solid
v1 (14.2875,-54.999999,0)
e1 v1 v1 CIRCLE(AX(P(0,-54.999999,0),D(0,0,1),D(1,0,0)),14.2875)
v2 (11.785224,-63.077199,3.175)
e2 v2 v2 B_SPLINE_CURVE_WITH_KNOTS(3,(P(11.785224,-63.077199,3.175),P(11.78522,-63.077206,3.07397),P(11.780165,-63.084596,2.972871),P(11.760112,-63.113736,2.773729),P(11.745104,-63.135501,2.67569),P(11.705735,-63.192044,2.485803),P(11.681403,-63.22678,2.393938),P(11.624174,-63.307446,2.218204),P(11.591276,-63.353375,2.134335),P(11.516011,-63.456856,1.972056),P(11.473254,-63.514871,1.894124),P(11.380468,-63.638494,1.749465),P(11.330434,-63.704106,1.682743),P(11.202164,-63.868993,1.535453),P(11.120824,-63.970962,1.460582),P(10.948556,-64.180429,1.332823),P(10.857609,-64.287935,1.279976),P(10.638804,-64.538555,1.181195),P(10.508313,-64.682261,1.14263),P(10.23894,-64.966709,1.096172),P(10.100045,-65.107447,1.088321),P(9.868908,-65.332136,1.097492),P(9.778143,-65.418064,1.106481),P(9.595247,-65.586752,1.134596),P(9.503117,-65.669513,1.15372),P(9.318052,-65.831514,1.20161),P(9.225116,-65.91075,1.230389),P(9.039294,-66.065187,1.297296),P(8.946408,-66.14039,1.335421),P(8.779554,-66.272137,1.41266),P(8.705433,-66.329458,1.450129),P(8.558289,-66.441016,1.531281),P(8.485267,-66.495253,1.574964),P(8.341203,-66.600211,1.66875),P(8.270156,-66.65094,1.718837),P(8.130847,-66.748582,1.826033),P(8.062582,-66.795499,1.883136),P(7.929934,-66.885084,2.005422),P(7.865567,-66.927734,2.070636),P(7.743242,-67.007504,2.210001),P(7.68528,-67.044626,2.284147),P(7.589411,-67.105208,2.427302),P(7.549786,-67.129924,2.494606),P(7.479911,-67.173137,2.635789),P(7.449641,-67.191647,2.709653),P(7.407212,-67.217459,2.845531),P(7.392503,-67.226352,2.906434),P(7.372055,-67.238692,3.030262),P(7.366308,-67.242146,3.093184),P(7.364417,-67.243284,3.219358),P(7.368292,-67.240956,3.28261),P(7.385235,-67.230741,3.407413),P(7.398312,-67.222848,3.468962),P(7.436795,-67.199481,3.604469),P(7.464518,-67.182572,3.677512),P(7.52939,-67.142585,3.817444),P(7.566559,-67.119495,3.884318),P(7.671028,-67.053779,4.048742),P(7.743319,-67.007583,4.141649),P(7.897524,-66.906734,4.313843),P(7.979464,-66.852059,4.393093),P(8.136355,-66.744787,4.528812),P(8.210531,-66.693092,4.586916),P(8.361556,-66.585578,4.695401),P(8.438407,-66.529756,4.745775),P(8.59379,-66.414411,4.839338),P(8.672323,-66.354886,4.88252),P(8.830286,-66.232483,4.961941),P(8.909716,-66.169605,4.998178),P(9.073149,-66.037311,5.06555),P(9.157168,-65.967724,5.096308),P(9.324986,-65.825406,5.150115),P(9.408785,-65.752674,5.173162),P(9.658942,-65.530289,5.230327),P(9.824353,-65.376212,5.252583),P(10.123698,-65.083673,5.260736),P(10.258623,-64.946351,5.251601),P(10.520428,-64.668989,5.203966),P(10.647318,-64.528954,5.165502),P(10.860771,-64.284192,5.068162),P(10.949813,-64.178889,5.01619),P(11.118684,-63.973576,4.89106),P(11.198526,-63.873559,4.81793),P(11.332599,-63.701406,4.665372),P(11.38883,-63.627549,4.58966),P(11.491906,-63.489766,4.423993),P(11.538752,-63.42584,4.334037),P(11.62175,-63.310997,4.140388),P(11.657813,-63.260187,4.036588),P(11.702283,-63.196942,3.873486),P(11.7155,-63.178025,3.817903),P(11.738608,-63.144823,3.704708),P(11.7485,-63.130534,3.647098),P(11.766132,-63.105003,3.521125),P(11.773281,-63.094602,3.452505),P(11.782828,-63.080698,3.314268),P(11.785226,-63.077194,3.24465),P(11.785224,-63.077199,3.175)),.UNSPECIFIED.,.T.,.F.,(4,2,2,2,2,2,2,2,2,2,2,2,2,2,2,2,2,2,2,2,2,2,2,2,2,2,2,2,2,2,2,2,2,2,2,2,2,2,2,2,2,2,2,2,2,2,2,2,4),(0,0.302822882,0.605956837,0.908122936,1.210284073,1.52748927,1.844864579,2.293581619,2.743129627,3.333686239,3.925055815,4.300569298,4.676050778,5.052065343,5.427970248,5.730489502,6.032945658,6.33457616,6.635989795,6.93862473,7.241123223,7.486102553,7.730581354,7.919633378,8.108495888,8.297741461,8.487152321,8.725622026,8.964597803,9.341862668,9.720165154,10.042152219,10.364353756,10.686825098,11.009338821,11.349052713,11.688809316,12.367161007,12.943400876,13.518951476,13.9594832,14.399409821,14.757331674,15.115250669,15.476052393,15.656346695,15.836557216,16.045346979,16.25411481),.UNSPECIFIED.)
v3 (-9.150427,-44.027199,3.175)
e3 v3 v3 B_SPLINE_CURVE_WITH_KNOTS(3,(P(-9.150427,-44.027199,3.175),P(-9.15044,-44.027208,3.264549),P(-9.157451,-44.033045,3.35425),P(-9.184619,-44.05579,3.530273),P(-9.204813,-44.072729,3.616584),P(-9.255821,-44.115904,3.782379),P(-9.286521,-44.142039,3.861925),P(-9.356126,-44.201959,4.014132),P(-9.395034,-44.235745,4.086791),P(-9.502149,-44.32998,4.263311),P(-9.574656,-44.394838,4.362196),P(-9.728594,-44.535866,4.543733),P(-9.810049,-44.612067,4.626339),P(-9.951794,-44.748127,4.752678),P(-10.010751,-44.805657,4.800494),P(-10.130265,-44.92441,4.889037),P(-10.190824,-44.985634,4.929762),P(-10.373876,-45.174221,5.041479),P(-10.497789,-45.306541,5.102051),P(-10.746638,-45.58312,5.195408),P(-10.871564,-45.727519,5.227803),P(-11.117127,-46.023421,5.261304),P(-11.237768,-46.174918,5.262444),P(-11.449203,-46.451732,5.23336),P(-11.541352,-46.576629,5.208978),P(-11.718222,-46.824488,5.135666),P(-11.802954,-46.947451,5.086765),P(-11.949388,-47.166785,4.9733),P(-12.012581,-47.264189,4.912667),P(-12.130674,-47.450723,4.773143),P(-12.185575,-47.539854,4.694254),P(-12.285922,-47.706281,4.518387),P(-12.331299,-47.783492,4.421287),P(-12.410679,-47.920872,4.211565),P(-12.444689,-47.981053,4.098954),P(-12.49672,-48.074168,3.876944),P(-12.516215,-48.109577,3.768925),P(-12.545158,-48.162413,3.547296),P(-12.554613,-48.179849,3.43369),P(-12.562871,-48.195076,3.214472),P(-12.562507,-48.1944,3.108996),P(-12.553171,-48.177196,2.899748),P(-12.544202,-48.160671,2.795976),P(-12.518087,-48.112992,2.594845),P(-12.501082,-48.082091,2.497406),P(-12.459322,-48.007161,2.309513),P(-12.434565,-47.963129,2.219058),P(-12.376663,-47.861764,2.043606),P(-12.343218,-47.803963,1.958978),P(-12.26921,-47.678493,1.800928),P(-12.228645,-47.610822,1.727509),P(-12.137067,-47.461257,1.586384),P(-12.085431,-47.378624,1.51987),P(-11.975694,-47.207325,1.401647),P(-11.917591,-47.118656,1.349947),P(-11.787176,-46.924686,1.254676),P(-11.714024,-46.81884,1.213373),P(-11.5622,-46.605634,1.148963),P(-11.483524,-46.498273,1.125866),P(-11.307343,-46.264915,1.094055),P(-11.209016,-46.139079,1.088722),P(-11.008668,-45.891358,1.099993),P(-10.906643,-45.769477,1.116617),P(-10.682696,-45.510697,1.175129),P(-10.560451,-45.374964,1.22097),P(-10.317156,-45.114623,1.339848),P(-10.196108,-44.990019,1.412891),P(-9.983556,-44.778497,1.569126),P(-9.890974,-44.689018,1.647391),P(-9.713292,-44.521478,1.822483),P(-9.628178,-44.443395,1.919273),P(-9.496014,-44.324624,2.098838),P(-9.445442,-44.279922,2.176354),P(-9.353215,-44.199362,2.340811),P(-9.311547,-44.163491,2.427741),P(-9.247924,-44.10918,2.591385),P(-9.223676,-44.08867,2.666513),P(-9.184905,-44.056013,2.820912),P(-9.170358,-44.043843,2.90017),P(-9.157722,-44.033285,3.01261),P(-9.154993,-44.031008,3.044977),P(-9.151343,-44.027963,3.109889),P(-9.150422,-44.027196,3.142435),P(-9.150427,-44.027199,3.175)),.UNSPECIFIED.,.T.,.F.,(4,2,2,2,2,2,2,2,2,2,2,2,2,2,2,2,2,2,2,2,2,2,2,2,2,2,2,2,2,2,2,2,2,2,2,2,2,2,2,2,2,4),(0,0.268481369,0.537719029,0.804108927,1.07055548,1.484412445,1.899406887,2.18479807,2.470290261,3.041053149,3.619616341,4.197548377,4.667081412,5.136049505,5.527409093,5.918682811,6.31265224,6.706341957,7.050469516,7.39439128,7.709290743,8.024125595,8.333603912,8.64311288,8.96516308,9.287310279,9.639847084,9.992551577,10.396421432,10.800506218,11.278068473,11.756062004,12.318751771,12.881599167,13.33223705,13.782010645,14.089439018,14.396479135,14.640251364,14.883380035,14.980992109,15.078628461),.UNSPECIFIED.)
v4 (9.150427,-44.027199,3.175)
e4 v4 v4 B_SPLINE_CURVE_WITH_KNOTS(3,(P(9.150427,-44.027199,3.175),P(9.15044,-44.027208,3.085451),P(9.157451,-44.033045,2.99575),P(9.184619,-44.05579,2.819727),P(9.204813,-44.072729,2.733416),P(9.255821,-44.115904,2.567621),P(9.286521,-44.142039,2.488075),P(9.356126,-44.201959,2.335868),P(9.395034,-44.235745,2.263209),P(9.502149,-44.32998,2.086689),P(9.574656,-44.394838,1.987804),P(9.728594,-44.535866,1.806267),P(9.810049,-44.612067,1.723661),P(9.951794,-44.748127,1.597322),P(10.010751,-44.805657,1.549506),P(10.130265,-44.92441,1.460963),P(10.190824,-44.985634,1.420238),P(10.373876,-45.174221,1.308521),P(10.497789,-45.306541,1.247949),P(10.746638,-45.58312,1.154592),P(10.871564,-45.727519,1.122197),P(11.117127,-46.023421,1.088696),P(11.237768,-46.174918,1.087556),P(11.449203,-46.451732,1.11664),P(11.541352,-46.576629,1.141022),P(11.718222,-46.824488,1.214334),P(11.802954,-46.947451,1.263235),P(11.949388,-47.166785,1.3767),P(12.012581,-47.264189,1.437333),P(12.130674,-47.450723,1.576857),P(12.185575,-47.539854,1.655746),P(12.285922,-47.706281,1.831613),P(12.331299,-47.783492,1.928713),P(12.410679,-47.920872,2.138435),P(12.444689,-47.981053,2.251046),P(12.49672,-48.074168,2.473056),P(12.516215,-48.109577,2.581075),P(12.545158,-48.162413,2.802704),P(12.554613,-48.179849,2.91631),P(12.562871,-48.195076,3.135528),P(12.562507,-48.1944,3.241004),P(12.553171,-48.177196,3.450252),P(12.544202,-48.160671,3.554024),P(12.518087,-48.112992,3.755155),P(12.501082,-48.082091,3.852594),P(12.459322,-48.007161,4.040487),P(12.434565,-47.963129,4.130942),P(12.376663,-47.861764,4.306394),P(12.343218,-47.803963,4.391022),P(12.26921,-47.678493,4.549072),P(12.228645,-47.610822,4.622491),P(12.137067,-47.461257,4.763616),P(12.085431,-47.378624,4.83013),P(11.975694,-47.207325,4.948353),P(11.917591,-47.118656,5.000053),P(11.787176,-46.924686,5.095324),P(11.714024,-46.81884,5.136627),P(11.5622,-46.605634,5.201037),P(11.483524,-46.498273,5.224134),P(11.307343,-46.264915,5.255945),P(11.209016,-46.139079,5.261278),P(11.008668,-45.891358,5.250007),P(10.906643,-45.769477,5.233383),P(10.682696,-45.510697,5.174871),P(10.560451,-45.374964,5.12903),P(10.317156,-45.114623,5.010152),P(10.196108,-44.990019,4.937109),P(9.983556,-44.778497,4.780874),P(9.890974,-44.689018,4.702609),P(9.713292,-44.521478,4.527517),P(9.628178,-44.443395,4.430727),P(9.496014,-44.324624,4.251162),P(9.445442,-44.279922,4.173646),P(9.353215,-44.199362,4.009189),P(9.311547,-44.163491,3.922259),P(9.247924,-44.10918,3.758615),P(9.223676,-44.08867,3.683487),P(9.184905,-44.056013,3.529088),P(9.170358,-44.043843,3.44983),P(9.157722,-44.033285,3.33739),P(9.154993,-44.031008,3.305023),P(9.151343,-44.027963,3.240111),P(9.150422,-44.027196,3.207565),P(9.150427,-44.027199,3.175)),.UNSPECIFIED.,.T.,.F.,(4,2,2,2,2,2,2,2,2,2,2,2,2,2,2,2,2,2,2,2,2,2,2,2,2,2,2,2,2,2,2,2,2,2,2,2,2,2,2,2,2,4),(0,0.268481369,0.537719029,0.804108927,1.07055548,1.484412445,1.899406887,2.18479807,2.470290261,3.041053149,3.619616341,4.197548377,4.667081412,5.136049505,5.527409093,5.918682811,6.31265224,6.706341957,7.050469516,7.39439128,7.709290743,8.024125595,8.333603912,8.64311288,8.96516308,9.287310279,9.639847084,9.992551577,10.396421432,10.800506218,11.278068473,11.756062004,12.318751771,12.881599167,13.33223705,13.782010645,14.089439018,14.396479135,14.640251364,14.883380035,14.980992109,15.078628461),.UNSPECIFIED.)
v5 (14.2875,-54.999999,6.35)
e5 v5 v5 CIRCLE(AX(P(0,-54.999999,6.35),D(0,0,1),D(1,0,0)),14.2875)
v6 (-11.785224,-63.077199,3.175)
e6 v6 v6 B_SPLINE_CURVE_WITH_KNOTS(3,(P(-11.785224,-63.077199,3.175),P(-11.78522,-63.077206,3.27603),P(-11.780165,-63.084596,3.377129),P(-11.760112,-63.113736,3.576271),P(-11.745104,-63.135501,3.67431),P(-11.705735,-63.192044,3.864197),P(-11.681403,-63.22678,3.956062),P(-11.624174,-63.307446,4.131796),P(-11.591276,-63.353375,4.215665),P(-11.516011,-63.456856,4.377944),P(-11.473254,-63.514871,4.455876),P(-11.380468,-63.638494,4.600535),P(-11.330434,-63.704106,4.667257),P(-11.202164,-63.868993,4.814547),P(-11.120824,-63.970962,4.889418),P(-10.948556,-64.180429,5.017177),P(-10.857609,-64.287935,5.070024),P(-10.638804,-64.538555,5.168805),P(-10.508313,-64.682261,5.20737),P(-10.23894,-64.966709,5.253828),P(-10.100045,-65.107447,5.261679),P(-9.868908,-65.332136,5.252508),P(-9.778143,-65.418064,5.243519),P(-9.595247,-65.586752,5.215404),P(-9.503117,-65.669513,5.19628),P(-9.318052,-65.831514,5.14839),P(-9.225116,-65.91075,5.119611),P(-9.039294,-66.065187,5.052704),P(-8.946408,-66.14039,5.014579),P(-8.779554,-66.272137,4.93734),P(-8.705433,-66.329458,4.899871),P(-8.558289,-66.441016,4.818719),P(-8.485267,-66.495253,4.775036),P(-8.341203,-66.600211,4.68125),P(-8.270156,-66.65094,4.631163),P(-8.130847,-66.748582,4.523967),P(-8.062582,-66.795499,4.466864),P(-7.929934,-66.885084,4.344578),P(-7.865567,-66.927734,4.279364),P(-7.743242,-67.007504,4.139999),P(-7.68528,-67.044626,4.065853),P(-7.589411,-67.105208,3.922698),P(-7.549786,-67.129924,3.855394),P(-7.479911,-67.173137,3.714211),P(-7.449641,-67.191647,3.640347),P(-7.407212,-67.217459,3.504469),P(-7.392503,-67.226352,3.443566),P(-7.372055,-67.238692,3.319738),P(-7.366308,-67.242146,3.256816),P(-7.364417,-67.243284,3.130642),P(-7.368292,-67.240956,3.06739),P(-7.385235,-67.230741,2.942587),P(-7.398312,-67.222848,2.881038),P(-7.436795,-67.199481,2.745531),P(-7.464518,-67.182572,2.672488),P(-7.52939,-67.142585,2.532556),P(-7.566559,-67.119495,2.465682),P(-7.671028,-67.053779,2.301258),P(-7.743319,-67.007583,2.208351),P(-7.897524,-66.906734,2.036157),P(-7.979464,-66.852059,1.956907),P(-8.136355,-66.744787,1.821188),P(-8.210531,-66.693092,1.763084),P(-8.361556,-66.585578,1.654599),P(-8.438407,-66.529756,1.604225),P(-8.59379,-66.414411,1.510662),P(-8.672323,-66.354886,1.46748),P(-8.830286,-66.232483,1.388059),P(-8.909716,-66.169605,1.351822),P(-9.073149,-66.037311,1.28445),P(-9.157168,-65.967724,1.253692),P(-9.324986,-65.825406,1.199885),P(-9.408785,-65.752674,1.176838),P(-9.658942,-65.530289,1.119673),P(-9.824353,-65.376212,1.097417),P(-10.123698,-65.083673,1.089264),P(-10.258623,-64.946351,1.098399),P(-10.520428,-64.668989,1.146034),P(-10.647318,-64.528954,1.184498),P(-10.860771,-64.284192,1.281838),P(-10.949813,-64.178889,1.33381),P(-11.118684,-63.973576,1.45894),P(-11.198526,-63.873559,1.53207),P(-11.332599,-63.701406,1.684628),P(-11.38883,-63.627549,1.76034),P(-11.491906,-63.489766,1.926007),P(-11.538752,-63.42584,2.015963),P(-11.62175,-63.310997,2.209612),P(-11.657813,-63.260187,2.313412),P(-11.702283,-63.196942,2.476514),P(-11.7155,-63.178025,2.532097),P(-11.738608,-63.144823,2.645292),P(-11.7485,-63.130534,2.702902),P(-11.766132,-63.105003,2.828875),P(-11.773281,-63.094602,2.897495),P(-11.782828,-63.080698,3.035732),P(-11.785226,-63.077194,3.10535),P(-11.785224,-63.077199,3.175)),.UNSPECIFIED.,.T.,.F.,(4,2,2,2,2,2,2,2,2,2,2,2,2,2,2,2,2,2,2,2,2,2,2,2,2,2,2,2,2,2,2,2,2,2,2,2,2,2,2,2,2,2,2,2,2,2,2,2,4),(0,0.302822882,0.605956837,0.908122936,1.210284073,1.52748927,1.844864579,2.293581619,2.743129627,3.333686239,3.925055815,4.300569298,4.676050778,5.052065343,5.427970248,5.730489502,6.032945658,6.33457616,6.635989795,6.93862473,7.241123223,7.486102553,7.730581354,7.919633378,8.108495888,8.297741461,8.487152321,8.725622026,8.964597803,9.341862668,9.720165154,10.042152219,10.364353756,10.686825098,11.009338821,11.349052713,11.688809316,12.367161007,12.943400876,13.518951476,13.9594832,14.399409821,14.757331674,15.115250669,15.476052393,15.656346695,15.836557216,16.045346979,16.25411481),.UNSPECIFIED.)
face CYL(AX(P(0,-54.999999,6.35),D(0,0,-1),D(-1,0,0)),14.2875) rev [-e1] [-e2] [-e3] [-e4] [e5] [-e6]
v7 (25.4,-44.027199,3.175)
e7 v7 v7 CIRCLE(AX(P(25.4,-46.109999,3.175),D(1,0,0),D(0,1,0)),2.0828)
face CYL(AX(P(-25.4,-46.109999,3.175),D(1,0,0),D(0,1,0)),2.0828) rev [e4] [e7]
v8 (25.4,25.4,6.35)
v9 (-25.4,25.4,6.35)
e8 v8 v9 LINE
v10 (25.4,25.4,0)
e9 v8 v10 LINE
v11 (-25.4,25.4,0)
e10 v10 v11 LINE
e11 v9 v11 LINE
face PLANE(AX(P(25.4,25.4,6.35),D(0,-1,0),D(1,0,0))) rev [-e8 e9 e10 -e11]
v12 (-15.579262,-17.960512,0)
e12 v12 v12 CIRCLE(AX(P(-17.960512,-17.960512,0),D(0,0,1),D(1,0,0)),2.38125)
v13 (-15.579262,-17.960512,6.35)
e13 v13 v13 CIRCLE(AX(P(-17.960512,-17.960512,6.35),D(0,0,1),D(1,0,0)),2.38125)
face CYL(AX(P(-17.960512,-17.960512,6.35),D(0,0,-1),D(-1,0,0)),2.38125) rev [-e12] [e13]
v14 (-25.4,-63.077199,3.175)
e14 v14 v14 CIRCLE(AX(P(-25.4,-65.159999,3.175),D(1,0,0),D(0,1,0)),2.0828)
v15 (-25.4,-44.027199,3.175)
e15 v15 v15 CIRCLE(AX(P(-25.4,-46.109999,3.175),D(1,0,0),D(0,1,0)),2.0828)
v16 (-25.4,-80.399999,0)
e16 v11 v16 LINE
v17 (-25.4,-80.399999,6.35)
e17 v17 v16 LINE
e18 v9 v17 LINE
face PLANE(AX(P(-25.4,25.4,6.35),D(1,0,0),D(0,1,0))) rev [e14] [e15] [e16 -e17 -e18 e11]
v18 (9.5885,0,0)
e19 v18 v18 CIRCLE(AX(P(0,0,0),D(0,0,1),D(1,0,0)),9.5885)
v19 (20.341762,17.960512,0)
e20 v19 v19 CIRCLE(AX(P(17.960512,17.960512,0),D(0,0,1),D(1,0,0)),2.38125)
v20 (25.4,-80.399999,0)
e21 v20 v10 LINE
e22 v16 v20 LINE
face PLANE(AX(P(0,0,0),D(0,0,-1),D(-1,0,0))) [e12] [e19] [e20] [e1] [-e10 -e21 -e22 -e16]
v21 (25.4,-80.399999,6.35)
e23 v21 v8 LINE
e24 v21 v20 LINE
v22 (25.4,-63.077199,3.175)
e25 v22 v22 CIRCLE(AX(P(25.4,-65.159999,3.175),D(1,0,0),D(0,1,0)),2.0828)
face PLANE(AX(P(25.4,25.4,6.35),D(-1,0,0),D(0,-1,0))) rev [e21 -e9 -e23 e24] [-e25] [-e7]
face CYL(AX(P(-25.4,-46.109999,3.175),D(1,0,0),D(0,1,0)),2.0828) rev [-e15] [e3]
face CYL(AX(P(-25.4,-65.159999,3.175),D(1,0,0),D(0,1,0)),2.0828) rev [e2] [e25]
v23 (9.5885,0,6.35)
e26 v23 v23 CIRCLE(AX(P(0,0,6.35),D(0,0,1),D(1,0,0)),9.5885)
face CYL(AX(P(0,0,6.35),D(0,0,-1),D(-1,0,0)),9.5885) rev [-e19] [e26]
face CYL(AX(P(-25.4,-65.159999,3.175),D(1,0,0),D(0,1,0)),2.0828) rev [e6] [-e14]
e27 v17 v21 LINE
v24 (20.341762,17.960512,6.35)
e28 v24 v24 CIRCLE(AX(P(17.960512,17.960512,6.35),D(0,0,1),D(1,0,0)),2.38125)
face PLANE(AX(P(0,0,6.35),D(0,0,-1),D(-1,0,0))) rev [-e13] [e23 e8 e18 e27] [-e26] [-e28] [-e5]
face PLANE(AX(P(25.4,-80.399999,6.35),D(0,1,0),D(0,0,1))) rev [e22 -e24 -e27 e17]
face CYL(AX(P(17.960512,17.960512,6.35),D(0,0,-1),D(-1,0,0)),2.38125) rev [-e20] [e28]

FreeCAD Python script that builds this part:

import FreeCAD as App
import Part
import Sketcher

V = App.Vector
Q = App.Units.Quantity

doc = App.newDocument("Part")
body = doc.addObject("PartDesign::Body", "Body")

# Sketch on XY plane
sketch1 = body.newObject("Sketcher::SketchObject", "Sketch")
sketch1.AttachmentSupport = (doc.getObject("XY_Plane"), [""])
sketch1.MapMode = "FlatFace"
sketch1.addGeometry([
    Part.LineSegment(V(-25.4, 25.4, 0), V(-25.4, -80.4, 0)),  # 0
    Part.LineSegment(V(-25.4, -80.4, 0), V(25.4, -80.4, 0)),  # 1
    Part.LineSegment(V(25.4, -80.4, 0), V(25.4, 25.4, 0)),  # 2
    Part.LineSegment(V(25.4, 25.4, 0), V(-25.4, 25.4, 0)),  # 3
    Part.Circle(V(0, -55, 0), V(0, 0, 1), 14.3),  # 4
    Part.Circle(V(-18, -18, 0), V(0, 0, 1), 2.4),  # 5
    Part.Circle(V(0, 0, 0), V(0, 0, 1), 9.6),  # 6
    Part.Circle(V(18, 18, 0), V(0, 0, 1), 2.4),  # 7
], False)
sketch1.addConstraint([
    Sketcher.Constraint("Coincident", 0, 2, 1, 1),
    Sketcher.Constraint("Coincident", 1, 2, 2, 1),
    Sketcher.Constraint("Coincident", 2, 2, 3, 1),
    Sketcher.Constraint("Coincident", 3, 2, 0, 1),
    Sketcher.Constraint("Vertical", 0),
    Sketcher.Constraint("Horizontal", 1),
    Sketcher.Constraint("Vertical", 2),
    Sketcher.Constraint("Horizontal", 3),
    Sketcher.Constraint("Coincident", 6, 3, -1, 1),
    Sketcher.Constraint("Equal", 5, 7),
    Sketcher.Constraint("Symmetric", 5, 3, 7, 3, -1, 1),
    Sketcher.Constraint("PointOnObject", 4, 3, -2),
    Sketcher.Constraint("DistanceX", 1, 1, 1, 2, Q("2 in")),
    Sketcher.Constraint("Diameter", 4, Q("1.125 in")),
    Sketcher.Constraint("Diameter", 5, Q("0.1875 in")),
    Sketcher.Constraint("Diameter", 6, Q("0.755 in")),
    Sketcher.Constraint("DistanceX", 0, 2, -1, 1, Q("1 in")),
    Sketcher.Constraint("DistanceY", -1, 1, 2, 2, Q("1 in")),
    Sketcher.Constraint("DistanceY", 0, 2, 4, 3, Q("1 in")),
    Sketcher.Constraint("DistanceY", 0, 2, 0, 1, 105.799999),
    Sketcher.Constraint("DistanceY", 4, 3, 7, 3, 72.960511),
    Sketcher.Constraint("DistanceX", 5, 3, -1, 1, 17.960512),
])
pad1 = body.newObject("PartDesign::Pad", "Pad")
pad1.Profile = sketch1
pad1.Length = Q("0.25 in")

# Sketch on YZ plane
sketch2 = body.newObject("Sketcher::SketchObject", "Sketch001")
sketch2.AttachmentSupport = (doc.getObject("YZ_Plane"), [""])
sketch2.MapMode = "FlatFace"
sketch2.AttachmentOffset = App.Placement(V(0, 0, 1 * 25.4), App.Rotation())
sketch2.addGeometry([
    Part.Circle(V(-65.2, 3.2, 0), V(0, 0, 1), 2.1),
    Part.Circle(V(-46.1, 3.2, 0), V(0, 0, 1), 2.1),
], False)
sketch2.addConstraint([
    Sketcher.Constraint("Equal", 0, 1),
    Sketcher.Constraint("Horizontal", 0, 3, 1, 3),
    Sketcher.Constraint("Diameter", 0, Q("0.164 in")),
    Sketcher.Constraint("DistanceX", 0, 3, 1, 3, Q("0.75 in")),
    Sketcher.Constraint("DistanceY", -1, 1, 0, 3, Q("0.125 in")),
    Sketcher.Constraint("DistanceX", 0, 3, -1, 1, 65.159999),
])
pocket1 = body.newObject("PartDesign::Pocket", "Pocket")
pocket1.Profile = sketch2
pocket1.Type = "ThroughAll"

doc.recompute()
